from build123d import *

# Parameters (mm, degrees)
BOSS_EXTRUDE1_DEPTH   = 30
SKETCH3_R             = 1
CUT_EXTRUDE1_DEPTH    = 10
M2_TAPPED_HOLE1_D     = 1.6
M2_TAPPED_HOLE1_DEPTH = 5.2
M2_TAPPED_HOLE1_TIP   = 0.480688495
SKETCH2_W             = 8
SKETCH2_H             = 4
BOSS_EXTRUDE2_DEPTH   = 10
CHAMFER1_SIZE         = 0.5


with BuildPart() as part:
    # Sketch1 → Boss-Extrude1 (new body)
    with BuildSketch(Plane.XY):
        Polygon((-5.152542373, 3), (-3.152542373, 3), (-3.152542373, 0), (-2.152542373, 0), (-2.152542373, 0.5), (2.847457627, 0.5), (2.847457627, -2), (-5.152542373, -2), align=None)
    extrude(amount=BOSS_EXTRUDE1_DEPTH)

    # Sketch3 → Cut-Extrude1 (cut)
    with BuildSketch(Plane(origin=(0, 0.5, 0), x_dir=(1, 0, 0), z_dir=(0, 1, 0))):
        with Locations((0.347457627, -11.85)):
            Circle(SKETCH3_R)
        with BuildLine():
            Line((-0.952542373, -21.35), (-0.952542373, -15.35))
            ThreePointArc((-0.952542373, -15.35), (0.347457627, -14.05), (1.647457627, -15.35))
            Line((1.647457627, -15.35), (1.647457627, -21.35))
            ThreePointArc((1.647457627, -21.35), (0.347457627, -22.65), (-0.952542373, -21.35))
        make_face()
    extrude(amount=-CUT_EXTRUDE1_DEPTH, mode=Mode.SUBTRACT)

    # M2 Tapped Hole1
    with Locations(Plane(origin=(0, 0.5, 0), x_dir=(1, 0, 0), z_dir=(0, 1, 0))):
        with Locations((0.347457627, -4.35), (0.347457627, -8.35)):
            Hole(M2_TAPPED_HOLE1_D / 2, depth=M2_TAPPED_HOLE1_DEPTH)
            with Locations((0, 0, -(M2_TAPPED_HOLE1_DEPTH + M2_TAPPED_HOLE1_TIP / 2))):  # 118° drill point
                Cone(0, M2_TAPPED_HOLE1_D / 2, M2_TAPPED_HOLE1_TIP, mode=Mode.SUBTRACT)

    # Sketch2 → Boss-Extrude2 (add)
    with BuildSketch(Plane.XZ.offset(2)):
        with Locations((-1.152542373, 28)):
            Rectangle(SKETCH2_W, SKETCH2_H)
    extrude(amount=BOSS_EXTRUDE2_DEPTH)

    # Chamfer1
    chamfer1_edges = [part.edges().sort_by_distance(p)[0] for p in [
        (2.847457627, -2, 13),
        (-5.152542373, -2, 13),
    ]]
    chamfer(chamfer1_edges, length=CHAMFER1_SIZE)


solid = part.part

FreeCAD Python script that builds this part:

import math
import FreeCAD as App
import Part
import Sketcher

V = App.Vector
Q = App.Units.Quantity


def edges_at(feature, points):
    """Names of the edges that pass closest to the given points."""
    edges = feature.Shape.Edges
    near = lambda p: min(range(len(edges)), key=lambda i: edges[i].distToShape(Part.Vertex(*p))[0])
    return sorted({f"Edge{near(p) + 1}" for p in points})

doc = App.newDocument("Part")
params = doc.addObject("Spreadsheet::Sheet", "Params")
for row, (alias, value) in enumerate([
    ("sketch1_width", "2 mm"),
    ("sketch1_width2", "8 mm"),
    ("sketch1_width3", "5 mm"),
    ("sketch1_height", "3 mm"),
    ("sketch1_height2", "2.5 mm"),
    ("pad1_length", "30 mm"),
    ("sketch2_diameter", "2 mm"),
    ("sketch2_radius", "1.3 mm"),
    ("sketch2_height", "6 mm"),
    ("pocket1_length", "10 mm"),
    ("sketch3_diameter", "1.6 mm"),
    ("hole_diameter", "1.6 mm"),
    ("hole_depth", "5.2 mm"),
    ("sketch4_width", "8 mm"),
    ("sketch4_height", "4 mm"),
    ("pad2_length", "10 mm"),
    ("chamfer_size", "0.5 mm"),
], start=1):
    params.set(f"A{row}", alias)
    params.set(f"B{row}", "=" + value)
    params.setAlias(f"B{row}", alias)

body = doc.addObject("PartDesign::Body", "Body")

# Sketch on XY plane
sketch1 = doc.addObject("Sketcher::SketchObject", "Sketch")
body.addObject(sketch1)
sketch1.AttachmentSupport = (doc.XY_Plane, [""])
sketch1.MapMode = "FlatFace"
sketch1.addGeometry([
    Part.LineSegment(V(-3.152542, 3, 0), V(-5.152542, 3, 0)),  # 0
    Part.LineSegment(V(-5.152542, 3, 0), V(-5.152542, -2, 0)),  # 1
    Part.LineSegment(V(-5.152542, -2, 0), V(2.847458, -2, 0)),  # 2
    Part.LineSegment(V(2.847458, -2, 0), V(2.847458, 0.5, 0)),  # 3
    Part.LineSegment(V(2.847458, 0.5, 0), V(-2.152542, 0.5, 0)),  # 4
    Part.LineSegment(V(-2.152542, 0.5, 0), V(-2.152542, 0, 0)),  # 5
    Part.LineSegment(V(-2.152542, 0, 0), V(-3.152542, 0, 0)),  # 6
    Part.LineSegment(V(-3.152542, 0, 0), V(-3.152542, 3, 0)),  # 7
], False)
sketch1.addConstraint([
    Sketcher.Constraint("Coincident", 0, 2, 1, 1),
    Sketcher.Constraint("Coincident", 1, 2, 2, 1),
    Sketcher.Constraint("Coincident", 2, 2, 3, 1),
    Sketcher.Constraint("Coincident", 3, 2, 4, 1),
    Sketcher.Constraint("Coincident", 4, 2, 5, 1),
    Sketcher.Constraint("Coincident", 5, 2, 6, 1),
    Sketcher.Constraint("Coincident", 6, 2, 7, 1),
    Sketcher.Constraint("Coincident", 7, 2, 0, 1),
    Sketcher.Constraint("Horizontal", 0),
    Sketcher.Constraint("Vertical", 1),
    Sketcher.Constraint("Horizontal", 2),
    Sketcher.Constraint("Vertical", 3),
    Sketcher.Constraint("Horizontal", 4),
    Sketcher.Constraint("Vertical", 5),
    Sketcher.Constraint("Horizontal", 6),
    Sketcher.Constraint("Vertical", 7),
    Sketcher.Constraint("PointOnObject", 5, 2, -1),
    Sketcher.Constraint("Equal", 4, 1),
    Sketcher.Constraint("DistanceX", 0, 2, 0, 1, Q("2 mm")),
    Sketcher.Constraint("DistanceX", 2, 1, 2, 2, Q("8 mm")),
    Sketcher.Constraint("DistanceX", 4, 2, 4, 1, Q("5 mm")),
    Sketcher.Constraint("DistanceY", 7, 1, 7, 2, Q("3 mm")),
    Sketcher.Constraint("DistanceY", 3, 1, 3, 2, Q("2.5 mm")),
    Sketcher.Constraint("DistanceX", 0, 2, -1, 1, Q("5.152542 mm")),
])
sketch1.setExpression("Constraints[18]", "Params.sketch1_width")
sketch1.setExpression("Constraints[19]", "Params.sketch1_width2")
sketch1.setExpression("Constraints[20]", "Params.sketch1_width3")
sketch1.setExpression("Constraints[21]", "Params.sketch1_height")
sketch1.setExpression("Constraints[22]", "Params.sketch1_height2")
pad1 = doc.addObject("PartDesign::Pad", "Pad")
body.addObject(pad1)
pad1.Profile = sketch1
pad1.setExpression("Length", "Params.pad1_length")

# Sketch on XZ plane
sketch2 = doc.addObject("Sketcher::SketchObject", "Sketch001")
body.addObject(sketch2)
sketch2.AttachmentSupport = (doc.XZ_Plane, [""])
sketch2.MapMode = "FlatFace"
sketch2.AttachmentOffset = App.Placement(V(0, 0, -0.5), App.Rotation())
sketch2.addGeometry([
    Part.Circle(V(0.347458, 11.85, 0), V(0, 0, 1), 1),  # 0
    Part.LineSegment(V(-0.952542, 15.35, 0), V(-0.952542, 21.35, 0)),  # 1
    Part.ArcOfCircle(Part.Circle(V(0.347458, 21.35, 0), V(0, 0, 1), 1.3), math.radians(0), math.radians(180)),  # 2
    Part.LineSegment(V(1.647458, 21.35, 0), V(1.647458, 15.35, 0)),  # 3
    Part.ArcOfCircle(Part.Circle(V(0.347458, 15.35, 0), V(0, 0, 1), 1.3), math.radians(180), math.radians(360)),  # 4
], False)
sketch2.addConstraint([
    Sketcher.Constraint("Tangent", 1, 2, 2, 2),
    Sketcher.Constraint("Tangent", 2, 1, 3, 1),
    Sketcher.Constraint("Tangent", 3, 2, 4, 2),
    Sketcher.Constraint("Tangent", 4, 1, 1, 1),
    Sketcher.Constraint("Vertical", 1),
    Sketcher.Constraint("Vertical", 3),
    Sketcher.Constraint("Vertical", 0, 3, 2, 3),
    Sketcher.Constraint("Diameter", 0, Q("2 mm")),
    Sketcher.Constraint("Radius", 2, Q("1.3 mm")),
    Sketcher.Constraint("DistanceY", 1, 1, 1, 2, Q("6 mm")),
    Sketcher.Constraint("DistanceY", 0, 3, 2, 3, Q("9.5 mm")),
    Sketcher.Constraint("DistanceY", -1, 1, 0, 3, Q("11.85 mm")),
    Sketcher.Constraint("DistanceX", -1, 1, 0, 3, Q("0.347458 mm")),
])
sketch2.setExpression("Constraints[7]", "Params.sketch2_diameter")
sketch2.setExpression("Constraints[8]", "Params.sketch2_radius")
sketch2.setExpression("Constraints[9]", "Params.sketch2_height")
pocket1 = doc.addObject("PartDesign::Pocket", "Pocket")
body.addObject(pocket1)
pocket1.Profile = sketch2
pocket1.setExpression("Length", "Params.pocket1_length")
pocket1.Reversed = True

# Sketch on XZ plane
sketch3 = doc.addObject("Sketcher::SketchObject", "Sketch002")
body.addObject(sketch3)
sketch3.AttachmentSupport = (doc.XZ_Plane, [""])
sketch3.MapMode = "FlatFace"
sketch3.AttachmentOffset = App.Placement(V(0, 0, -0.5), App.Rotation())
sketch3.addGeometry([
    Part.Circle(V(0.347458, 4.35, 0), V(0, 0, 1), 0.8),
    Part.Circle(V(0.347458, 8.35, 0), V(0, 0, 1), 0.8),
], False)
sketch3.addConstraint([
    Sketcher.Constraint("Equal", 0, 1),
    Sketcher.Constraint("Vertical", 0, 3, 1, 3),
    Sketcher.Constraint("Diameter", 0, Q("1.6 mm")),
    Sketcher.Constraint("DistanceY", 0, 3, 1, 3, Q("4 mm")),
    Sketcher.Constraint("DistanceY", -1, 1, 0, 3, Q("4.35 mm")),
    Sketcher.Constraint("DistanceX", -1, 1, 0, 3, Q("0.347458 mm")),
])
sketch3.setExpression("Constraints[2]", "Params.sketch3_diameter")
doc.recompute()
hole = doc.addObject("PartDesign::Hole", "Hole")
body.addObject(hole)
hole.Profile = sketch3
hole.ThreadType = "None"
hole.setExpression("Diameter", "Params.hole_diameter")
hole.DepthType = "Dimension"
hole.setExpression("Depth", "Params.hole_depth")
hole.DrillPoint = "Angled"
hole.DrillPointAngle = 118
hole.Reversed = True

# Sketch on XZ plane
sketch4 = doc.addObject("Sketcher::SketchObject", "Sketch003")
body.addObject(sketch4)
sketch4.AttachmentSupport = (doc.XZ_Plane, [""])
sketch4.MapMode = "FlatFace"
sketch4.AttachmentOffset = App.Placement(V(0, 0, 2), App.Rotation())
sketch4.addGeometry([
    Part.LineSegment(V(-5.152542, 30, 0), V(-5.152542, 26, 0)),
    Part.LineSegment(V(-5.152542, 26, 0), V(2.847458, 26, 0)),
    Part.LineSegment(V(2.847458, 26, 0), V(2.847458, 30, 0)),
    Part.LineSegment(V(2.847458, 30, 0), V(-5.152542, 30, 0)),
], False)
sketch4.addConstraint([
    Sketcher.Constraint("Coincident", 0, 2, 1, 1),
    Sketcher.Constraint("Coincident", 1, 2, 2, 1),
    Sketcher.Constraint("Coincident", 2, 2, 3, 1),
    Sketcher.Constraint("Coincident", 3, 2, 0, 1),
    Sketcher.Constraint("Vertical", 0),
    Sketcher.Constraint("Horizontal", 1),
    Sketcher.Constraint("Vertical", 2),
    Sketcher.Constraint("Horizontal", 3),
    Sketcher.Constraint("DistanceX", 1, 1, 1, 2, Q("8 mm")),
    Sketcher.Constraint("DistanceY", 0, 2, 0, 1, Q("4 mm")),
    Sketcher.Constraint("DistanceY", -1, 1, 0, 2, Q("26 mm")),
    Sketcher.Constraint("DistanceX", 0, 2, -1, 1, Q("5.152542 mm")),
])
sketch4.setExpression("Constraints[8]", "Params.sketch4_width")
sketch4.setExpression("Constraints[9]", "Params.sketch4_height")
pad2 = doc.addObject("PartDesign::Pad", "Pad001")
body.addObject(pad2)
pad2.Profile = sketch4
pad2.setExpression("Length", "Params.pad2_length")
doc.recompute()

chamfer = doc.addObject("PartDesign::Chamfer", "Chamfer")
body.addObject(chamfer)
chamfer.Base = (pad2, edges_at(pad2, [(2.847, -2, 13), (-5.153, -2, 13)]))
chamfer.setExpression("Size", "Params.chamfer_size")

doc.recompute()
